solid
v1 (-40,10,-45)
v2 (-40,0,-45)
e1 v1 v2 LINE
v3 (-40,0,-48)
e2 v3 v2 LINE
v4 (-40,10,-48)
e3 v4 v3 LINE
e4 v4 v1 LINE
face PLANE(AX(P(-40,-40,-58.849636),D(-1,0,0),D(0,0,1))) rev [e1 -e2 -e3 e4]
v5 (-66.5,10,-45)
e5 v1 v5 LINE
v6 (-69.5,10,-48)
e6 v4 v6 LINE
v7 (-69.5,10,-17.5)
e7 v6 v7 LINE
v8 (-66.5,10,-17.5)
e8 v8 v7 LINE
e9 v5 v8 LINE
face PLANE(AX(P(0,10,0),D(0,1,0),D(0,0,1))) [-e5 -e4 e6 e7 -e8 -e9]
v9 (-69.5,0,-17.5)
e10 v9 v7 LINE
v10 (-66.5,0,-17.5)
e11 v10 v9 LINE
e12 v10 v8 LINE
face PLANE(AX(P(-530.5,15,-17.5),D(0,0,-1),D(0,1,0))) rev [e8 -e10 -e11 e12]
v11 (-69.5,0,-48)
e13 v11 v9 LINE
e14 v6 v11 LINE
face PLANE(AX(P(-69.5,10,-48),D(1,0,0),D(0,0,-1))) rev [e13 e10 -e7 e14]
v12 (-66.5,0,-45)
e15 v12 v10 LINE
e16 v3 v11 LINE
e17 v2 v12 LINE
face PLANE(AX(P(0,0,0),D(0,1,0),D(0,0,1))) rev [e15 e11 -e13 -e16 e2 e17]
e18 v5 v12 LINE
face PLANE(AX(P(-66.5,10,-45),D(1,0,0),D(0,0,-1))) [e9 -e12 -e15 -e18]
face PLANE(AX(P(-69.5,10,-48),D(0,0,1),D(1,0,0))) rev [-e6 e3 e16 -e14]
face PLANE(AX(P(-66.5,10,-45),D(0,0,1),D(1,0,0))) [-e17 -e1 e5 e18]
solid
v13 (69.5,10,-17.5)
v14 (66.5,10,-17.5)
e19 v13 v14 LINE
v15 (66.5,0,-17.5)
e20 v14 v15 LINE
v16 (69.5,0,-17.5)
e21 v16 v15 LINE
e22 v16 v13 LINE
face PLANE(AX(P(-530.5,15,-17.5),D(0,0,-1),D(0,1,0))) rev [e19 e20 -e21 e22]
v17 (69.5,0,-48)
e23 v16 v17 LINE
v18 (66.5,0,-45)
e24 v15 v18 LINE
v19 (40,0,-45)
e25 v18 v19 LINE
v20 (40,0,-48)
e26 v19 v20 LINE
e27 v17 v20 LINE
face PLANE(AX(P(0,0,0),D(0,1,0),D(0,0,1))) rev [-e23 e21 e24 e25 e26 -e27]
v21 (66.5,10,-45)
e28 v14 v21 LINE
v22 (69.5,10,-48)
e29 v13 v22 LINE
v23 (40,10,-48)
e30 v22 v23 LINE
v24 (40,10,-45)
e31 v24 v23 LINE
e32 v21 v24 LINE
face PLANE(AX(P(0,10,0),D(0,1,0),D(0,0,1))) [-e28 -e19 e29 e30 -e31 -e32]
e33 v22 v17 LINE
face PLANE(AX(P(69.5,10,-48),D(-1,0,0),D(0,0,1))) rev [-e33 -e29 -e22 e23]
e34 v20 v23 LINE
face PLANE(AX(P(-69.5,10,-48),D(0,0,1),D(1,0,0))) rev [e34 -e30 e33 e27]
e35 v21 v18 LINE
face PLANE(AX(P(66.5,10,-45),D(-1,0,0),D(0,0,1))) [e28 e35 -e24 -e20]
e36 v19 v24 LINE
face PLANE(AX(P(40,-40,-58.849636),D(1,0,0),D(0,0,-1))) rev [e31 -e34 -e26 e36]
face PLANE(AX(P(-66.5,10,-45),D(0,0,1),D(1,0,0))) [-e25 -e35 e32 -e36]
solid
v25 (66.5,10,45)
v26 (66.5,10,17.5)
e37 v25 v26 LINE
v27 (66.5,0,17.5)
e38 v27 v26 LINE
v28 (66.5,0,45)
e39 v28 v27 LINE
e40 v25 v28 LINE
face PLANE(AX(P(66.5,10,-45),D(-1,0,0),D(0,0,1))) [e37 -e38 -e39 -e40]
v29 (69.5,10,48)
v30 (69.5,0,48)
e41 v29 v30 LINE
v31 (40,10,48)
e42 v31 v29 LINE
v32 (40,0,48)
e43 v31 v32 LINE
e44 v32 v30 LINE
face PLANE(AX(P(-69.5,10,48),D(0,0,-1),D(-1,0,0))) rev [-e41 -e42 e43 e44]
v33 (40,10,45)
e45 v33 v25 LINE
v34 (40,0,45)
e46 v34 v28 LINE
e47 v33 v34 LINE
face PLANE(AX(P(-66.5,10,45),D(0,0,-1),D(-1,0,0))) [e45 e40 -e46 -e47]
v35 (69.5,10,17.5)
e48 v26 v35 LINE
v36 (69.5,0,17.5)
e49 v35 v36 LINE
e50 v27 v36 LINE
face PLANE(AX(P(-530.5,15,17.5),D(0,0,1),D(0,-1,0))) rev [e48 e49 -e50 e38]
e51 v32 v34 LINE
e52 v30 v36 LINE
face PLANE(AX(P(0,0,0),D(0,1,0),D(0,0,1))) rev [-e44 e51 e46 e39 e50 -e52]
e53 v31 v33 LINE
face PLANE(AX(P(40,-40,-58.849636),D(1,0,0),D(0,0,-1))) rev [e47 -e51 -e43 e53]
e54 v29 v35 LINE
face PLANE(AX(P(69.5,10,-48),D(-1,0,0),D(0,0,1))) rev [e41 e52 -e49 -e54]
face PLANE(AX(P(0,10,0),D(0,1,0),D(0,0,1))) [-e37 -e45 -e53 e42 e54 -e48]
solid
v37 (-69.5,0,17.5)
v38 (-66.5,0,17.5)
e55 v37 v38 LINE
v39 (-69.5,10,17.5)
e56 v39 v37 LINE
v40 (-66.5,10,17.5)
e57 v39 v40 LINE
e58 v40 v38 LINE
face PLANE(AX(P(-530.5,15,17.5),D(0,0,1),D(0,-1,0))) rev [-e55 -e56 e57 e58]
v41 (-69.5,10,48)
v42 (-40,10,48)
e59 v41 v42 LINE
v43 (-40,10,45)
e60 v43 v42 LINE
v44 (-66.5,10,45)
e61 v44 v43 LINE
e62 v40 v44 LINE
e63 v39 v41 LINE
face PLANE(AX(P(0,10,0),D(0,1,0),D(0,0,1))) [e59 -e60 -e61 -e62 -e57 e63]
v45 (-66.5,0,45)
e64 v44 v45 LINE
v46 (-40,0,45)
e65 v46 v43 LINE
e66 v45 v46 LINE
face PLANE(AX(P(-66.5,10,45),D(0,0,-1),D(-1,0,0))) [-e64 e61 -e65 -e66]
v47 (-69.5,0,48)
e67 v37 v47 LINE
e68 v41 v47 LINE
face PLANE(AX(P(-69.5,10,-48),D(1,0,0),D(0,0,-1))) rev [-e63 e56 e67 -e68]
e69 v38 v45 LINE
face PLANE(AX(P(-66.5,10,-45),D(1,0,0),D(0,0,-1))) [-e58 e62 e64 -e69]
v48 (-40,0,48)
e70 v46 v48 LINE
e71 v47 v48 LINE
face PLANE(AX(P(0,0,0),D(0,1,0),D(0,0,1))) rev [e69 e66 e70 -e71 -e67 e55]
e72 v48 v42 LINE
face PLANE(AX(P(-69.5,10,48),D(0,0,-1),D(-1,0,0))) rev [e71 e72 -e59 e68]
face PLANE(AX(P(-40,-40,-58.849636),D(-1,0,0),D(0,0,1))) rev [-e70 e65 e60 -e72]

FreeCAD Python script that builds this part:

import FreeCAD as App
import Part
import Sketcher
from FreeCAD import Vector

doc = App.newDocument("Part")
body = doc.addObject("PartDesign::Body", "Body")
body.AllowCompound = True

# Sketch on XZ plane
sketch1 = body.newObject("Sketcher::SketchObject", "Sketch")
sketch1.AttachmentSupport = (doc.getObject("XZ_Plane"), [""])
sketch1.MapMode = "FlatFace"
sketch1.addGeometry([
    Part.LineSegment(Vector(-69.5, -48, 0), Vector(-69.5, 48, 0)),  # 0
    Part.LineSegment(Vector(-69.5, 48, 0), Vector(69.5, 48, 0)),  # 1
    Part.LineSegment(Vector(69.5, 48, 0), Vector(69.5, -48, 0)),  # 2
    Part.LineSegment(Vector(69.5, -48, 0), Vector(-69.5, -48, 0)),  # 3
    Part.LineSegment(Vector(66.5, 45, 0), Vector(-66.5, 45, 0)),  # 4
    Part.LineSegment(Vector(-66.5, 45, 0), Vector(-66.5, -45, 0)),  # 5
    Part.LineSegment(Vector(-66.5, -45, 0), Vector(66.5, -45, 0)),  # 6
    Part.LineSegment(Vector(66.5, -45, 0), Vector(66.5, 45, 0)),  # 7
], False)
sketch1.addConstraint([
    Sketcher.Constraint("Coincident", 0, 2, 1, 1),
    Sketcher.Constraint("Coincident", 1, 2, 2, 1),
    Sketcher.Constraint("Coincident", 2, 2, 3, 1),
    Sketcher.Constraint("Coincident", 3, 2, 0, 1),
    Sketcher.Constraint("Coincident", 4, 2, 5, 1),
    Sketcher.Constraint("Coincident", 5, 2, 6, 1),
    Sketcher.Constraint("Coincident", 6, 2, 7, 1),
    Sketcher.Constraint("Coincident", 7, 2, 4, 1),
    Sketcher.Constraint("Vertical", 0),
    Sketcher.Constraint("Horizontal", 1),
    Sketcher.Constraint("Vertical", 2),
    Sketcher.Constraint("Horizontal", 3),
    Sketcher.Constraint("Horizontal", 4),
    Sketcher.Constraint("Vertical", 5),
    Sketcher.Constraint("Horizontal", 6),
    Sketcher.Constraint("Vertical", 7),
    Sketcher.Constraint("Symmetric", 0, 2, 2, 2, -1, 1),
    Sketcher.Constraint("Symmetric", 4, 2, 6, 2, -1, 1),
    Sketcher.Constraint("DistanceX", 1, 1, 1, 2, 139.0),
    Sketcher.Constraint("DistanceX", 4, 2, 4, 1, 133.0),
    Sketcher.Constraint("DistanceY", 0, 1, 0, 2, 96.0),
    Sketcher.Constraint("DistanceY", 5, 2, 5, 1, 90.0),
])
pad1 = body.newObject("PartDesign::Pad", "Pad")
pad1.Profile = sketch1
pad1.Length = 10
pad1.Reversed = True

# Sketch on YZ plane
sketch2 = body.newObject("Sketcher::SketchObject", "Sketch001")
sketch2.AttachmentSupport = (doc.getObject("YZ_Plane"), [""])
sketch2.MapMode = "FlatFace"
sketch2.AttachmentOffset = App.Placement(Vector(0, 0, 69.5), App.Rotation())
sketch2.addGeometry([
    Part.LineSegment(Vector(15, 17.5, 0), Vector(-15, 17.5, 0)),
    Part.LineSegment(Vector(-15, 17.5, 0), Vector(-15, -17.5, 0)),
    Part.LineSegment(Vector(-15, -17.5, 0), Vector(15, -17.5, 0)),
    Part.LineSegment(Vector(15, -17.5, 0), Vector(15, 17.5, 0)),
], False)
sketch2.addConstraint([
    Sketcher.Constraint("Coincident", 0, 2, 1, 1),
    Sketcher.Constraint("Coincident", 1, 2, 2, 1),
    Sketcher.Constraint("Coincident", 2, 2, 3, 1),
    Sketcher.Constraint("Coincident", 3, 2, 0, 1),
    Sketcher.Constraint("Horizontal", 0),
    Sketcher.Constraint("Vertical", 1),
    Sketcher.Constraint("Horizontal", 2),
    Sketcher.Constraint("Vertical", 3),
    Sketcher.Constraint("Symmetric", 0, 2, 2, 2, -1, 1),
    Sketcher.Constraint("DistanceX", 0, 2, 0, 1, 30.0),
    Sketcher.Constraint("DistanceY", 1, 2, 1, 1, 35.0),
])
pocket1 = body.newObject("PartDesign::Pocket", "Pocket")
pocket1.Profile = sketch2
pocket1.Length = 600

# Sketch on XZ plane
sketch3 = body.newObject("Sketcher::SketchObject", "Sketch002")
sketch3.AttachmentSupport = (doc.getObject("XZ_Plane"), [""])
sketch3.MapMode = "FlatFace"
sketch3.AttachmentOffset = App.Placement(Vector(0, 0, -10), App.Rotation())
sketch3.addGeometry([
    Part.LineSegment(Vector(-40, -58.849636, 0), Vector(-40, 61.755791, 0)),
    Part.LineSegment(Vector(-40, 61.755791, 0), Vector(40, 61.755791, 0)),
    Part.LineSegment(Vector(40, 61.755791, 0), Vector(40, -58.849636, 0)),
    Part.LineSegment(Vector(40, -58.849636, 0), Vector(-40, -58.849636, 0)),
], False)
sketch3.addConstraint([
    Sketcher.Constraint("Coincident", 0, 2, 1, 1),
    Sketcher.Constraint("Coincident", 1, 2, 2, 1),
    Sketcher.Constraint("Coincident", 2, 2, 3, 1),
    Sketcher.Constraint("Coincident", 3, 2, 0, 1),
    Sketcher.Constraint("Vertical", 0),
    Sketcher.Constraint("Horizontal", 1),
    Sketcher.Constraint("Vertical", 2),
    Sketcher.Constraint("Horizontal", 3),
    Sketcher.Constraint("DistanceX", 1, 1, 1, 2, 80.0),
    Sketcher.Constraint("DistanceX", 0, 2, -1, 1, 40.0),
    Sketcher.Constraint("DistanceY", 0, 1, 0, 2, 120.605427),
    Sketcher.Constraint("DistanceY", -1, 1, 0, 2, 61.755791),
])
pocket2 = body.newObject("PartDesign::Pocket", "Pocket001")
pocket2.Profile = sketch3
pocket2.Length = 50
pocket2.Reversed = True

doc.recompute()
